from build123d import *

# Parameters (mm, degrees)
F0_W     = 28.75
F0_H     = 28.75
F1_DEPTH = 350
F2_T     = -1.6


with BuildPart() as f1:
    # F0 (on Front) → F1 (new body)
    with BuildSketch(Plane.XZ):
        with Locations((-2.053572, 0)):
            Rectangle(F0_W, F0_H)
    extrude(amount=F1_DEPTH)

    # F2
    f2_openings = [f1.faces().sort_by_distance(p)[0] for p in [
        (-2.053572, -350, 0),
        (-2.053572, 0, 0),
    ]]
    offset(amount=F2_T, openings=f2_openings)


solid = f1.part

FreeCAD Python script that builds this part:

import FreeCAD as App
import Part
import Sketcher

V = App.Vector
Q = App.Units.Quantity


def faces_at(feature, points):
    """Names of the faces that lie closest to the given points."""
    faces = feature.Shape.Faces
    near = lambda p: min(range(len(faces)), key=lambda i: faces[i].distToShape(Part.Vertex(*p))[0])
    return sorted({f"Face{near(p) + 1}" for p in points})

doc = App.newDocument("Part")
body = doc.addObject("PartDesign::Body", "Body")

# Sketch on XZ plane
sketch1 = body.newObject("Sketcher::SketchObject", "Sketch")
sketch1.AttachmentSupport = (doc.getObject("XZ_Plane"), [""])
sketch1.MapMode = "FlatFace"
sketch1.addGeometry(Part.LineSegment(V(-16, 14, 0), V(-16, -14, 0)), False)
sketch1.addGeometry(Part.LineSegment(V(-16, -14, 0), V(12, -14, 0)), False)
sketch1.addGeometry(Part.LineSegment(V(12, -14, 0), V(12, 14, 0)), False)
sketch1.addGeometry(Part.LineSegment(V(12, 14, 0), V(-16, 14, 0)), False)
sketch1.addConstraint(Sketcher.Constraint("Coincident", 0, 2, 1, 1))
sketch1.addConstraint(Sketcher.Constraint("Coincident", 1, 2, 2, 1))
sketch1.addConstraint(Sketcher.Constraint("Coincident", 2, 2, 3, 1))
sketch1.addConstraint(Sketcher.Constraint("Coincident", 3, 2, 0, 1))
sketch1.addConstraint(Sketcher.Constraint("Vertical", 0))
sketch1.addConstraint(Sketcher.Constraint("Horizontal", 1))
sketch1.addConstraint(Sketcher.Constraint("Vertical", 2))
sketch1.addConstraint(Sketcher.Constraint("Horizontal", 3))
sketch1.addConstraint(Sketcher.Constraint("Equal", 3, 0))
sketch1.addConstraint(Sketcher.Constraint("DistanceX", 1, 1, 1, 2, Q("28.75 mm")))
sketch1.addConstraint(Sketcher.Constraint("DistanceY", 0, 2, -1, 1, Q("14.375 mm")))
sketch1.addConstraint(Sketcher.Constraint("DistanceX", 0, 2, -1, 1, Q("16.428572 mm")))
pad1 = body.newObject("PartDesign::Pad", "Pad")
pad1.Profile = sketch1
pad1.Length = 350
doc.recompute()

thickness = body.newObject("PartDesign::Thickness", "Thickness")
thickness.Base = (pad1, faces_at(pad1, [(-2.054, -350, 0), (-2.054, 0, 0)]))
thickness.Value = 1.6
thickness.Reversed = True
thickness.Join = "Arc"

doc.recompute()
